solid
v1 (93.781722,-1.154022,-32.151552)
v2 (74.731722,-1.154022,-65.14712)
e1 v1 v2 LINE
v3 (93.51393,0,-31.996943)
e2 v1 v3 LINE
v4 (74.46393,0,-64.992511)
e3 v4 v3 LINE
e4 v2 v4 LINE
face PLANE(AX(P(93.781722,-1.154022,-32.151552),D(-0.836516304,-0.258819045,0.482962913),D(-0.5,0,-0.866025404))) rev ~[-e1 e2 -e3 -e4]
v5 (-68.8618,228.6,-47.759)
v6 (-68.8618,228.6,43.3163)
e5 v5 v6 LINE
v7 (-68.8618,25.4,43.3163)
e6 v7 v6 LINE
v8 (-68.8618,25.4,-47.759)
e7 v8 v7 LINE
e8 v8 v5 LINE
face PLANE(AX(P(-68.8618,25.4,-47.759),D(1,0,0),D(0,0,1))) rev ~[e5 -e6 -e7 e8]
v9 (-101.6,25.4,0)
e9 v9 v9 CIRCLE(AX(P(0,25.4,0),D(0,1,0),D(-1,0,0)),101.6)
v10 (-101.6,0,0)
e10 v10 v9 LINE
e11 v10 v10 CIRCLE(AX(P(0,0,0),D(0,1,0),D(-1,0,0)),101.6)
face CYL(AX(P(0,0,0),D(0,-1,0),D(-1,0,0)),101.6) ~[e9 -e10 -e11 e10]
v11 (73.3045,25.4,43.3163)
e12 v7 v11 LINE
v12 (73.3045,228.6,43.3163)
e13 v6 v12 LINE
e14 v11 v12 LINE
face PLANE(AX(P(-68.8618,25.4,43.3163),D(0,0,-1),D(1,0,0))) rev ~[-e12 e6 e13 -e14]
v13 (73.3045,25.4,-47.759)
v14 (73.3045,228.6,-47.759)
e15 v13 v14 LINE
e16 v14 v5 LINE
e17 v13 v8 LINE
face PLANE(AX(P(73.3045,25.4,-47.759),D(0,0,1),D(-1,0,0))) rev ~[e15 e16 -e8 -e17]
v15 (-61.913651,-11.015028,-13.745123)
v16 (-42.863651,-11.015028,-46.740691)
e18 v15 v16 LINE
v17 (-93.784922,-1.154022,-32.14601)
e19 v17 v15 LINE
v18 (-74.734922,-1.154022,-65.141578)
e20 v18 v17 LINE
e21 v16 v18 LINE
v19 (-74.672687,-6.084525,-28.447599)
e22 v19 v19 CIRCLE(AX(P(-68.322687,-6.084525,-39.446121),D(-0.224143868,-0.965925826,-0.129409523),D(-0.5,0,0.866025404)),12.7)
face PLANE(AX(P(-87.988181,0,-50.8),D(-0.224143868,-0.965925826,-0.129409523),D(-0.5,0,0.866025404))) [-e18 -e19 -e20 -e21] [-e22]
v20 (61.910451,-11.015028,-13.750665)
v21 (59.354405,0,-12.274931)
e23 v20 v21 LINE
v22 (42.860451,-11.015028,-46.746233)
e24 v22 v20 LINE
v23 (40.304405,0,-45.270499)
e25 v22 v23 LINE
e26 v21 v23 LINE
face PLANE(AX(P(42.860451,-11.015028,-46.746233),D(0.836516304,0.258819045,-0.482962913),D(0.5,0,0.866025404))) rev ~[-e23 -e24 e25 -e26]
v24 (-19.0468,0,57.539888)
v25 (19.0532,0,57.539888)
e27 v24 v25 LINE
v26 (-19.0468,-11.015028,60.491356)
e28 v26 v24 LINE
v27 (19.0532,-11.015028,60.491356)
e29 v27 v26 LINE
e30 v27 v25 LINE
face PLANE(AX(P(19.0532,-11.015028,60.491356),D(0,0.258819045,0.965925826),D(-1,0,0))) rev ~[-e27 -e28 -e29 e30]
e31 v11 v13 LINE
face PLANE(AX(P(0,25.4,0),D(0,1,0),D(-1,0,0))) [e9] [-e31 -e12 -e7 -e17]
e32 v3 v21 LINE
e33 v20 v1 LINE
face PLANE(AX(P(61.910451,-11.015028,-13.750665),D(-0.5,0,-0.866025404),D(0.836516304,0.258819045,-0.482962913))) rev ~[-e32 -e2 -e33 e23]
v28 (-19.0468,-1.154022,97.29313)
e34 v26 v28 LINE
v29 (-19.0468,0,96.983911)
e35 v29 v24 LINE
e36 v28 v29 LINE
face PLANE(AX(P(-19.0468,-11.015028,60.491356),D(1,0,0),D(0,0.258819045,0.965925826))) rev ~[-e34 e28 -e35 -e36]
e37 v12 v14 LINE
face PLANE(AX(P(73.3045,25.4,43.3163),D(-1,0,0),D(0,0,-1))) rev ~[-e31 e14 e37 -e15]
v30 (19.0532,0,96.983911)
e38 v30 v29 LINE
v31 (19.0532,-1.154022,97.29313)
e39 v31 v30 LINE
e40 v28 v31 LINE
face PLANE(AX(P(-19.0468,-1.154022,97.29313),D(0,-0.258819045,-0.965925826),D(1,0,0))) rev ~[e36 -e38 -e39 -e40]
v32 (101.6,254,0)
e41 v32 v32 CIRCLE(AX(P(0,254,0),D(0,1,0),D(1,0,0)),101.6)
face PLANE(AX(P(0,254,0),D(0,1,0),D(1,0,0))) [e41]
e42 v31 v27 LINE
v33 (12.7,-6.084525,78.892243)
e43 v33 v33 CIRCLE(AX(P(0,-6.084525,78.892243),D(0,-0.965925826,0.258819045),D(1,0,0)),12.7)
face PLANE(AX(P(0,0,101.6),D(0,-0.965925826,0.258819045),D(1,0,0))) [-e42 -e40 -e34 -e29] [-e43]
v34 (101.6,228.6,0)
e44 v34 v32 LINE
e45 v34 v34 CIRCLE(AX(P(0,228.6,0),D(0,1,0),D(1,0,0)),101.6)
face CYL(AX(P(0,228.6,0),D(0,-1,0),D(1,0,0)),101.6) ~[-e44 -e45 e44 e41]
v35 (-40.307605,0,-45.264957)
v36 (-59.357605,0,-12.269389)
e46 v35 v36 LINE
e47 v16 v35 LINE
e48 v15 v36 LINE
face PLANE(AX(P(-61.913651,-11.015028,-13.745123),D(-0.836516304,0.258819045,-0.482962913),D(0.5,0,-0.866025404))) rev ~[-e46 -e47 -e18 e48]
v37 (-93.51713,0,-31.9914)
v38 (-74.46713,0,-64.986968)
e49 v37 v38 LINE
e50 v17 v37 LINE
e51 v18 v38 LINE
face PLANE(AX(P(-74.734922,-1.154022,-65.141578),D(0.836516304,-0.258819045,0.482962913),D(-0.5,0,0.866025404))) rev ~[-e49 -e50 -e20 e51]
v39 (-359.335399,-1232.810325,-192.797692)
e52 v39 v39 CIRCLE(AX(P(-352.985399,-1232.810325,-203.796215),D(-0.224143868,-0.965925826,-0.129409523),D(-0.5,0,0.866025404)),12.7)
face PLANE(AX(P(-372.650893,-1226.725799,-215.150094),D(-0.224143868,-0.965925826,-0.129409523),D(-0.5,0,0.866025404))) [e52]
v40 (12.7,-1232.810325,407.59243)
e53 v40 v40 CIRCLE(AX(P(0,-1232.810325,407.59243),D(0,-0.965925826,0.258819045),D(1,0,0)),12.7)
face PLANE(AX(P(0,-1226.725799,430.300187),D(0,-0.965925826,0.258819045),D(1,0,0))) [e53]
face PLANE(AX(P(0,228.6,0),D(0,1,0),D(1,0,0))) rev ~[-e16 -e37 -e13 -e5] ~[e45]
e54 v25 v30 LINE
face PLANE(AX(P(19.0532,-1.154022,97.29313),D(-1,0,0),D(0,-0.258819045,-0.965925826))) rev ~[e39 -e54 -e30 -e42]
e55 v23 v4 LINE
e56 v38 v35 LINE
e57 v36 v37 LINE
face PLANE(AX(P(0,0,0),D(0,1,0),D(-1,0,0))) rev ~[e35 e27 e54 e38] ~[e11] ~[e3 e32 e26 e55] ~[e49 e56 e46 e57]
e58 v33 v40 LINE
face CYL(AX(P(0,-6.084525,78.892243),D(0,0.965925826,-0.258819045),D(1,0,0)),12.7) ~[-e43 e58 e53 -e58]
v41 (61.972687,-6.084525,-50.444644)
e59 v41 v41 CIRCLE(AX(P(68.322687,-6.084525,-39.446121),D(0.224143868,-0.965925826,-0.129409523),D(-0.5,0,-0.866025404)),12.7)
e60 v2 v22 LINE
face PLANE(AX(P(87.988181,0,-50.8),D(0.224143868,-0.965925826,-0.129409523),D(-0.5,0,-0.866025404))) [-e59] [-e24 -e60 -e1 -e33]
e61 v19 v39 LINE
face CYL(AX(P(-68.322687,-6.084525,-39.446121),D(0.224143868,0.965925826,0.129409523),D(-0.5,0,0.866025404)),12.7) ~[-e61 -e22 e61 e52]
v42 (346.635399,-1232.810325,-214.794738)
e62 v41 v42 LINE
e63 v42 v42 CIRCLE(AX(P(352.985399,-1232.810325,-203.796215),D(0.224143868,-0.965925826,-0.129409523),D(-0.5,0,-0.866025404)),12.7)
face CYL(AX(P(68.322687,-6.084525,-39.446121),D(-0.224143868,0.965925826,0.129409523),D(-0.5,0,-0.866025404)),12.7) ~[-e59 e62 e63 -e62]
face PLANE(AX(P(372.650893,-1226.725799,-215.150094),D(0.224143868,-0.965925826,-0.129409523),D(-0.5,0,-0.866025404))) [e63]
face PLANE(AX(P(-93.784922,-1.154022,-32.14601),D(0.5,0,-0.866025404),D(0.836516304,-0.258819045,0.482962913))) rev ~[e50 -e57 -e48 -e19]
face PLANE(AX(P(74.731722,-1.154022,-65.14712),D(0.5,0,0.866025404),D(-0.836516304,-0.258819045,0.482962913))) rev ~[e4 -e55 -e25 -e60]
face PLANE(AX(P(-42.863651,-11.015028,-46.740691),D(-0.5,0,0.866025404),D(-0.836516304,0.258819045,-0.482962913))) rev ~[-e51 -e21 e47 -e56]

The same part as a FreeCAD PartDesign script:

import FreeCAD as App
import Part
import Sketcher
from FreeCAD import Vector
Q = App.Units.Quantity

doc = App.newDocument("Part")
body = doc.addObject("PartDesign::Body", "Body")

# Sketch on XZ plane
sketch1 = doc.addObject("Sketcher::SketchObject", "Sketch")
body.addObject(sketch1)
sketch1.AttachmentSupport = (doc.XZ_Plane, [""])
sketch1.MapMode = "FlatFace"
sketch1.addGeometry(Part.Circle(Vector(0, 0, 0), Vector(0, 0, 1), 102), False)
sketch1.addConstraint(Sketcher.Constraint("Coincident", 0, 3, -1, 1))
sketch1.addConstraint(Sketcher.Constraint("Diameter", 0, Q("8 in")))
pad1 = doc.addObject("PartDesign::Pad", "Pad")
body.addObject(pad1)
pad1.Profile = sketch1
pad1.Length = Q("1 in")
pad1.Reversed = True

# Sketch on an angled plane
sketch2 = doc.addObject("Sketcher::SketchObject", "Sketch001")
body.addObject(sketch2)
sketch2.Placement = App.Placement(Vector(0, 0, 101.6), App.Rotation(Vector(1, 0, 0), Vector(0, 0.258819045, 0.965925826), Vector(0, -0.965925826, 0.258819045), "ZXY"))
sketch2.addGeometry(Part.LineSegment(Vector(19, -4, 0), Vector(-19, -4, 0)), False)
sketch2.addGeometry(Part.LineSegment(Vector(-19, -4, 0), Vector(-19, -43, 0)), False)
sketch2.addGeometry(Part.LineSegment(Vector(-19, -43, 0), Vector(19, -43, 0)), False)
sketch2.addGeometry(Part.LineSegment(Vector(19, -43, 0), Vector(19, -4, 0)), False)
sketch2.addConstraint(Sketcher.Constraint("Coincident", 0, 2, 1, 1))
sketch2.addConstraint(Sketcher.Constraint("Coincident", 1, 2, 2, 1))
sketch2.addConstraint(Sketcher.Constraint("Coincident", 2, 2, 3, 1))
sketch2.addConstraint(Sketcher.Constraint("Coincident", 3, 2, 0, 1))
sketch2.addConstraint(Sketcher.Constraint("Horizontal", 0))
sketch2.addConstraint(Sketcher.Constraint("Vertical", 1))
sketch2.addConstraint(Sketcher.Constraint("Horizontal", 2))
sketch2.addConstraint(Sketcher.Constraint("Vertical", 3))
sketch2.addConstraint(Sketcher.Constraint("Equal", 2, 1))
sketch2.addConstraint(Sketcher.Constraint("DistanceX", 0, 2, 0, 1, Q("1.5 in")))
sketch2.addConstraint(Sketcher.Constraint("DistanceX", 0, 2, -1, 1, Q("19.0468 mm")))
sketch2.addConstraint(Sketcher.Constraint("DistanceY", 0, 2, -1, 1, Q("4.4588 mm")))
pad2 = doc.addObject("PartDesign::Pad", "Pad001")
body.addObject(pad2)
pad2.Profile = sketch2
pad2.Length = Q("1 in")
pad2.Reversed = True

# Sketch on an angled plane
sketch3 = doc.addObject("Sketcher::SketchObject", "Sketch002")
body.addObject(sketch3)
sketch3.Placement = App.Placement(Vector(0, 0, 101.6), App.Rotation(Vector(1, 0, 0), Vector(0, 0.258819045, 0.965925826), Vector(0, -0.965925826, 0.258819045), "ZXY"))
sketch3.addGeometry(Part.Circle(Vector(0, -24, 0), Vector(0, 0, 1), 13), False)
sketch3.addConstraint(Sketcher.Constraint("PointOnObject", 0, 3, -2))
sketch3.addConstraint(Sketcher.Constraint("Diameter", 0, Q("1 in")))
sketch3.addConstraint(Sketcher.Constraint("DistanceY", 0, 3, -1, 1, Q("23.5088 mm")))
pad3 = doc.addObject("PartDesign::Pad", "Pad002")
body.addObject(pad3)
pad3.Profile = sketch3
pad3.Length = Q("50 in")
doc.recompute()

polarpattern = doc.addObject("PartDesign::PolarPattern", "PolarPattern")
body.addObject(polarpattern)
polarpattern.Originals = [pad2, pad3]
polarpattern.Axis = (doc.Y_Axis, [""])
polarpattern.Angle = 360
polarpattern.Occurrences = 3
body.Tip = polarpattern

# Sketch on XZ plane
sketch4 = doc.addObject("Sketcher::SketchObject", "Sketch003")
body.addObject(sketch4)
sketch4.AttachmentSupport = (doc.XZ_Plane, [""])
sketch4.MapMode = "FlatFace"
sketch4.AttachmentOffset = App.Placement(Vector(0, 0, -1 * 25.4), App.Rotation())
sketch4.addGeometry(Part.LineSegment(Vector(-69, -48, 0), Vector(-69, 43, 0)), False)
sketch4.addGeometry(Part.LineSegment(Vector(-69, 43, 0), Vector(73, 43, 0)), False)
sketch4.addGeometry(Part.LineSegment(Vector(73, 43, 0), Vector(73, -48, 0)), False)
sketch4.addGeometry(Part.LineSegment(Vector(73, -48, 0), Vector(-69, -48, 0)), False)
sketch4.addConstraint(Sketcher.Constraint("Coincident", 0, 2, 1, 1))
sketch4.addConstraint(Sketcher.Constraint("Coincident", 1, 2, 2, 1))
sketch4.addConstraint(Sketcher.Constraint("Coincident", 2, 2, 3, 1))
sketch4.addConstraint(Sketcher.Constraint("Coincident", 3, 2, 0, 1))
sketch4.addConstraint(Sketcher.Constraint("Vertical", 0))
sketch4.addConstraint(Sketcher.Constraint("Horizontal", 1))
sketch4.addConstraint(Sketcher.Constraint("Vertical", 2))
sketch4.addConstraint(Sketcher.Constraint("Horizontal", 3))
sketch4.addConstraint(Sketcher.Constraint("DistanceX", 1, 1, 1, 2, Q("5.5971 in")))
sketch4.addConstraint(Sketcher.Constraint("DistanceX", -1, 1, 1, 2, Q("2.886 in")))
sketch4.addConstraint(Sketcher.Constraint("DistanceY", 0, 1, 0, 2, Q("91.0753 mm")))
sketch4.addConstraint(Sketcher.Constraint("DistanceY", -1, 1, 0, 2, Q("43.3163 mm")))
pad4 = doc.addObject("PartDesign::Pad", "Pad003")
body.addObject(pad4)
pad4.Profile = sketch4
pad4.Length = Q("8 in")
pad4.Reversed = True

# Sketch on XZ plane
sketch5 = doc.addObject("Sketcher::SketchObject", "Sketch004")
body.addObject(sketch5)
sketch5.AttachmentSupport = (doc.XZ_Plane, [""])
sketch5.MapMode = "FlatFace"
sketch5.AttachmentOffset = App.Placement(Vector(0, 0, -9 * 25.4), App.Rotation())
sketch5.addGeometry(Part.Circle(Vector(0, 0, 0), Vector(0, 0, 1), 102), False)
sketch5.addConstraint(Sketcher.Constraint("Coincident", 0, 3, -1, 1))
sketch5.addConstraint(Sketcher.Constraint("Diameter", 0, Q("8 in")))
pad5 = doc.addObject("PartDesign::Pad", "Pad004")
body.addObject(pad5)
pad5.Profile = sketch5
pad5.Length = Q("1 in")
pad5.Reversed = True

doc.recompute()
